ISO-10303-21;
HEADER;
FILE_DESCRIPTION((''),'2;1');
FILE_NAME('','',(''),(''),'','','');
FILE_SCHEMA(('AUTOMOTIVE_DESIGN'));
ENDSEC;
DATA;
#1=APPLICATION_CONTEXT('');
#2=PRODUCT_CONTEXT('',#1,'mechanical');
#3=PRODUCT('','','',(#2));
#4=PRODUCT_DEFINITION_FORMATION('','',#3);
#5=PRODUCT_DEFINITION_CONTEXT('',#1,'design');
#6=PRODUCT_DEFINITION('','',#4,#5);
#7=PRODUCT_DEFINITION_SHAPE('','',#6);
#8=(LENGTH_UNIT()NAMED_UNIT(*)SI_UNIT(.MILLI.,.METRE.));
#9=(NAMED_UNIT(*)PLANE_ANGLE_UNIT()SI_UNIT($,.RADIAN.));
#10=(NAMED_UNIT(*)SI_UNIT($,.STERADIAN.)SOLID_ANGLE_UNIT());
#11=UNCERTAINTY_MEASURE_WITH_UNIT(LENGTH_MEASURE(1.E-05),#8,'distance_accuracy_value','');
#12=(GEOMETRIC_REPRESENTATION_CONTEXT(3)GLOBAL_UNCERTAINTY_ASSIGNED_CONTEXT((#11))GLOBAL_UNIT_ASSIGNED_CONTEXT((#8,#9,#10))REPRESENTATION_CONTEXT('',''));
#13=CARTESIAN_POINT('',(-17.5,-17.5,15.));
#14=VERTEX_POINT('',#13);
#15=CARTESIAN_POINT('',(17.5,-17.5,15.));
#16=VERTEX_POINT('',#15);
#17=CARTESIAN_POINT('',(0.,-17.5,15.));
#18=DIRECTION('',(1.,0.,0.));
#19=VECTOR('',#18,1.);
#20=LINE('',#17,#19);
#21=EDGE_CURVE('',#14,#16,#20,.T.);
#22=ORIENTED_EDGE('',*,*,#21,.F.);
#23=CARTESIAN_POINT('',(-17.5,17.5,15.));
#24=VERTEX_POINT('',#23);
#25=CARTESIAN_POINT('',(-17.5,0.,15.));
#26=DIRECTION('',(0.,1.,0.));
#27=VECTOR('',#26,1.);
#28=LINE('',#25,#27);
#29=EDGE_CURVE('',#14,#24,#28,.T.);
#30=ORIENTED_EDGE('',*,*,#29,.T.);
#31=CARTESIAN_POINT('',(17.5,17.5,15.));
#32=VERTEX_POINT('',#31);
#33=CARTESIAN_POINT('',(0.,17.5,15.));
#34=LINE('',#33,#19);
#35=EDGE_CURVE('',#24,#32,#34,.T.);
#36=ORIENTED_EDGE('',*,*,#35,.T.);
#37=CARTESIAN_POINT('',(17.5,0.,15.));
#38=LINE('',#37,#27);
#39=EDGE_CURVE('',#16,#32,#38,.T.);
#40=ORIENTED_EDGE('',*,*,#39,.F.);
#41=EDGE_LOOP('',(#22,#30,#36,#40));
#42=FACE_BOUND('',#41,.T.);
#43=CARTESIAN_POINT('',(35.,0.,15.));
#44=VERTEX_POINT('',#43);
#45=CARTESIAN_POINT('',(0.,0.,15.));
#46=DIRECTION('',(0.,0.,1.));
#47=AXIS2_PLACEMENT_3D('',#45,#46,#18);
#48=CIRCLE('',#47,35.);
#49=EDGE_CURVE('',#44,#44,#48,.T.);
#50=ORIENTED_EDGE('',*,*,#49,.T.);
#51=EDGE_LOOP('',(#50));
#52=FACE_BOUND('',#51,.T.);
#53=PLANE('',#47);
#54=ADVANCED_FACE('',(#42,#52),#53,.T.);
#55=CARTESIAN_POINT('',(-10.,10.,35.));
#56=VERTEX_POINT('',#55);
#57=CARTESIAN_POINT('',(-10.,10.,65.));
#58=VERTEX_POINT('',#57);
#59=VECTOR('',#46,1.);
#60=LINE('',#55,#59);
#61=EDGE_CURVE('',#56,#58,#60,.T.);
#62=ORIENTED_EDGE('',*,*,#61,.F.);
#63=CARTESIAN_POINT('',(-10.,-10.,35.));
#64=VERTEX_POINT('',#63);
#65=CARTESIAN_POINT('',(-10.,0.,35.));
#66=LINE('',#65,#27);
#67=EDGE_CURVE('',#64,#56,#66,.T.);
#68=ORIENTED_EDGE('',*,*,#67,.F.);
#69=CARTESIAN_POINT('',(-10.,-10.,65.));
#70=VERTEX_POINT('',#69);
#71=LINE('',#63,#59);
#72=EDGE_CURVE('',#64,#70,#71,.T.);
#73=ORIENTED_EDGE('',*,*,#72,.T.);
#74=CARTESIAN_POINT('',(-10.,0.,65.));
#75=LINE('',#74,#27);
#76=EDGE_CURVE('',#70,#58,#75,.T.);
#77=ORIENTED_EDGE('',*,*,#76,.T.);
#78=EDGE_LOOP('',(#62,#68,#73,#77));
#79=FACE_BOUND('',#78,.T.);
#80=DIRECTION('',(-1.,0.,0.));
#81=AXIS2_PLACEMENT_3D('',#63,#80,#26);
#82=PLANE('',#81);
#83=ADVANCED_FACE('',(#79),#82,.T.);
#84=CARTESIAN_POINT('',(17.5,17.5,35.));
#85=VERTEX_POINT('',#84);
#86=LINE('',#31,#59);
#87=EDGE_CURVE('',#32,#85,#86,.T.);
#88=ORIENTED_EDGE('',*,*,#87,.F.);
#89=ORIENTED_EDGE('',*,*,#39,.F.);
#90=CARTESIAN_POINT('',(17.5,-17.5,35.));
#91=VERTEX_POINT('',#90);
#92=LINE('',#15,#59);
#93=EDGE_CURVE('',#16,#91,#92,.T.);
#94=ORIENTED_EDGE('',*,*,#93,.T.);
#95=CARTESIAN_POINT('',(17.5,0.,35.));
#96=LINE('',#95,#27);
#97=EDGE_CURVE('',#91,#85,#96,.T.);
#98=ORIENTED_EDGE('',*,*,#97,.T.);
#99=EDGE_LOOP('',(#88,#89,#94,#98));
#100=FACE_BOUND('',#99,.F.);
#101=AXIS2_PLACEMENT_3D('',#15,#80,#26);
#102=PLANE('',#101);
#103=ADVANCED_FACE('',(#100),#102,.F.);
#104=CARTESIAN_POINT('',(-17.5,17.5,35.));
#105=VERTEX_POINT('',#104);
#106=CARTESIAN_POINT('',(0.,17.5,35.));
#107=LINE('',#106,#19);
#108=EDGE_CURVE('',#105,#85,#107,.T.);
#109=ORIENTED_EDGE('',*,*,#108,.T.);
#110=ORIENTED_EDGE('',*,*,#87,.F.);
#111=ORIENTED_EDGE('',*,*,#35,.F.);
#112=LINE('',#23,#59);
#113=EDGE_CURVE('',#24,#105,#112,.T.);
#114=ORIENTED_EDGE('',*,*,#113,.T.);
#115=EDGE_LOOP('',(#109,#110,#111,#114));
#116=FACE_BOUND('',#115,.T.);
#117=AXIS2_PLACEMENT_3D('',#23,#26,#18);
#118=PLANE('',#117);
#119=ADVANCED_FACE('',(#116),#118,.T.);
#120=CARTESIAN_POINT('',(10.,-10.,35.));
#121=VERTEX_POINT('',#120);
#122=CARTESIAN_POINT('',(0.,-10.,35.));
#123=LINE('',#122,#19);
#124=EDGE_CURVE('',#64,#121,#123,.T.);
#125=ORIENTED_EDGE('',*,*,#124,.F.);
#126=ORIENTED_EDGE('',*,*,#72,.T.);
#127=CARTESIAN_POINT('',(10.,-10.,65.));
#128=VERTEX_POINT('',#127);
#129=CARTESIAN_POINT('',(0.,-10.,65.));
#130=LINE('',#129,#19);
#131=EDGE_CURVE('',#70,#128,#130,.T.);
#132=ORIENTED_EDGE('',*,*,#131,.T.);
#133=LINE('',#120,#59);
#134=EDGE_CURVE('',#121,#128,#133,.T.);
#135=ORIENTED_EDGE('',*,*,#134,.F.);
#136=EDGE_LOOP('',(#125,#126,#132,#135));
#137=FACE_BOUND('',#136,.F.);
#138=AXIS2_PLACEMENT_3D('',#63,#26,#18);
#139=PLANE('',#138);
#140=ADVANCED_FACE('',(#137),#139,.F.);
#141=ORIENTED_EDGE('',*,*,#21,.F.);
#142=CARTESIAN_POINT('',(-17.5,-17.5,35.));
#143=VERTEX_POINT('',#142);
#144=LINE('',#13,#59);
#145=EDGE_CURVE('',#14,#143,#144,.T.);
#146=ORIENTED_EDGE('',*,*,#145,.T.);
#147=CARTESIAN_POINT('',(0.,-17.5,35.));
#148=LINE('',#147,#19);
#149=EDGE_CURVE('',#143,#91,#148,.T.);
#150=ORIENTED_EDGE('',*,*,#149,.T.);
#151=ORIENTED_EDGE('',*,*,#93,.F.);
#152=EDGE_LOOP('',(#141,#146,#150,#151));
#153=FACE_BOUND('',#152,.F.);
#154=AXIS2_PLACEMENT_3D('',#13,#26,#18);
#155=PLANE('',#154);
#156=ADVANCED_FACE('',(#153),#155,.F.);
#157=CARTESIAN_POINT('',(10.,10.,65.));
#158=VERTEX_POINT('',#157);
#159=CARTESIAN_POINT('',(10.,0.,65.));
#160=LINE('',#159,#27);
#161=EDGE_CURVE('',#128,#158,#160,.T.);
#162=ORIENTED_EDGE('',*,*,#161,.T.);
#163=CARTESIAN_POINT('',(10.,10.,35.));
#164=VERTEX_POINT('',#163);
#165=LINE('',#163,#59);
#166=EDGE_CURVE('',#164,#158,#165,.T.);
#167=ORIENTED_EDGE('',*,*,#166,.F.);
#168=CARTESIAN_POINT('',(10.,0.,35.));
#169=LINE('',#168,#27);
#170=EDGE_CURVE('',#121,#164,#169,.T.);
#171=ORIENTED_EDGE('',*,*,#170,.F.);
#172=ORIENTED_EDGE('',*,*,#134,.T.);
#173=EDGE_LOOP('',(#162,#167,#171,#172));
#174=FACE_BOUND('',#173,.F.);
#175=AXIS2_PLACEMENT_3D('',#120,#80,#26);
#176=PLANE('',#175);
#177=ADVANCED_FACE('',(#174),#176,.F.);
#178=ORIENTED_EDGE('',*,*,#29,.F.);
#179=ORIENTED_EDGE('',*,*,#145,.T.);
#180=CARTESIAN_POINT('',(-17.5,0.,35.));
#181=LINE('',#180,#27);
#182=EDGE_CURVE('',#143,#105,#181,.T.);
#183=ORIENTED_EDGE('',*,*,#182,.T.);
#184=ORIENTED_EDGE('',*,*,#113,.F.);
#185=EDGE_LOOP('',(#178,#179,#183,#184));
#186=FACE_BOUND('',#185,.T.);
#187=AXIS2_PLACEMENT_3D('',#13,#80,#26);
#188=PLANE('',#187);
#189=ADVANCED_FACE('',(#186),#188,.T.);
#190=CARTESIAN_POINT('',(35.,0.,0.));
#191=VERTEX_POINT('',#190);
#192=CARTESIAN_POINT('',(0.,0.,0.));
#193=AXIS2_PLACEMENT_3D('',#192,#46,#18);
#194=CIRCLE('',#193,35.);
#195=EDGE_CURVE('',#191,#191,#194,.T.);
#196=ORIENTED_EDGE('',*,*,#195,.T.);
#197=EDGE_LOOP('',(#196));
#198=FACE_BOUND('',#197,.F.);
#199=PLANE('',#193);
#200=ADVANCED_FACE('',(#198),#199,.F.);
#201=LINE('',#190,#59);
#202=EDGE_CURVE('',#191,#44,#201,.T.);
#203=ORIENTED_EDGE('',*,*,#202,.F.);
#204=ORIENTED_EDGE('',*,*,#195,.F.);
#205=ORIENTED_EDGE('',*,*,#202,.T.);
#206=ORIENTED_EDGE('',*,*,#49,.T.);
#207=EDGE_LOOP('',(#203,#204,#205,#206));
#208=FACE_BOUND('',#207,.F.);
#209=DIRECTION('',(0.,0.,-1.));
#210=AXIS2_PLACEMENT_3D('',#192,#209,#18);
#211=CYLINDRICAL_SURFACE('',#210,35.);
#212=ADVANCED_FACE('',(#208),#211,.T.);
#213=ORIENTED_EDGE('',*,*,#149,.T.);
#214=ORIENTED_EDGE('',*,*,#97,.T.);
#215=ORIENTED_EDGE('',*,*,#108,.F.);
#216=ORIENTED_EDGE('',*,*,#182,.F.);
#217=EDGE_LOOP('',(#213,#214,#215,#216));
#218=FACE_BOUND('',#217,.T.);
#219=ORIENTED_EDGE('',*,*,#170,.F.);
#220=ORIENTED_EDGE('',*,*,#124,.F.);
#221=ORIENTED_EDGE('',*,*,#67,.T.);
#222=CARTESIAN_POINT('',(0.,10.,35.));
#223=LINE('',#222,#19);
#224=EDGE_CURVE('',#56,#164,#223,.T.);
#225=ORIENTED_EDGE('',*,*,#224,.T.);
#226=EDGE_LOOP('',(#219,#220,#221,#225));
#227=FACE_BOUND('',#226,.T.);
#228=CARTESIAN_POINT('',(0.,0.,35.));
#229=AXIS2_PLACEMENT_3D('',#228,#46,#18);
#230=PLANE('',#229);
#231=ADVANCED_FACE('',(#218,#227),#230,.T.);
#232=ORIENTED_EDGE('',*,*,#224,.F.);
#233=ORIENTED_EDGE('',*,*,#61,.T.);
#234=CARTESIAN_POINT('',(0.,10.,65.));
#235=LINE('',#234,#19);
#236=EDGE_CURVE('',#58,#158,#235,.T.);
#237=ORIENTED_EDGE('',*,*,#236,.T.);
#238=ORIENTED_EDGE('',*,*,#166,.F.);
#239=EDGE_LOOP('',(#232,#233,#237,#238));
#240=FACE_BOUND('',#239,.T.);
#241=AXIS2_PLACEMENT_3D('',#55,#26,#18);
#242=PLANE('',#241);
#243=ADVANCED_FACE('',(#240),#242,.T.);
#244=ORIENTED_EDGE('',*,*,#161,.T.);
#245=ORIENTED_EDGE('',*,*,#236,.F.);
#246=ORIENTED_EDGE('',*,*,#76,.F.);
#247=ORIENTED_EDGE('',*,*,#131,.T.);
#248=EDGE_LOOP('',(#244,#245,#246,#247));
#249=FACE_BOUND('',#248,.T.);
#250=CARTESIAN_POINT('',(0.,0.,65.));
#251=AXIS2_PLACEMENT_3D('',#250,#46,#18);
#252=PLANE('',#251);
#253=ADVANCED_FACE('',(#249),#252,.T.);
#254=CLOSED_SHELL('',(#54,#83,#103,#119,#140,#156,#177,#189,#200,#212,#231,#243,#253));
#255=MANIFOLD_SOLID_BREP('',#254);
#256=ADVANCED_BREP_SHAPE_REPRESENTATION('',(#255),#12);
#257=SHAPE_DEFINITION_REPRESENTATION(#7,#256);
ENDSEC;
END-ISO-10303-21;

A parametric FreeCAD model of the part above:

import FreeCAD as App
import Part
import Sketcher

V = App.Vector
Q = App.Units.Quantity


def add_polygon(sketch, points):
    """Adds a closed chain of lines whose ends are joined by coincident constraints."""
    first, n = sketch.GeometryCount, len(points)
    for a, b in zip(points, points[1:] + points[:1]):
        sketch.addGeometry(Part.LineSegment(App.Vector(*a, 0), App.Vector(*b, 0)), False)
    for i in range(n):
        sketch.addConstraint(Sketcher.Constraint("Coincident", first + i, 2, first + (i + 1) % n, 1))

doc = App.newDocument("Part")
body = doc.addObject("PartDesign::Body", "Body")

sketch1 = body.newObject("Sketcher::SketchObject", "Sketch")
sketch1.AttachmentSupport = (doc.getObject("XY_Plane"), [""])
sketch1.MapMode = "FlatFace"
sketch1.addGeometry(Part.Circle(V(0, 0, 0), V(0, 0, 1), 35), False)
sketch1.addConstraint([
    Sketcher.Constraint("Coincident", 0, 3, -1, 1),
    Sketcher.Constraint("Diameter", 0, Q("70 mm")),
])
pad1 = body.newObject("PartDesign::Pad", "Pad")
pad1.Profile = sketch1
pad1.Length = 15

sketch2 = body.newObject("Sketcher::SketchObject", "Sketch001")
sketch2.AttachmentSupport = (doc.getObject("XY_Plane"), [""])
sketch2.MapMode = "FlatFace"
sketch2.AttachmentOffset = App.Placement(V(0, 0, 15), App.Rotation())
add_polygon(sketch2, [(-17.5, 17.5), (-17.5, -17.5), (17.5, -17.5), (17.5, 17.5)])
sketch2.addConstraint([
    Sketcher.Constraint("Vertical", 0),
    Sketcher.Constraint("Horizontal", 1),
    Sketcher.Constraint("Vertical", 2),
    Sketcher.Constraint("Horizontal", 3),
    Sketcher.Constraint("Symmetric", 0, 2, 2, 2, -1, 1),
    Sketcher.Constraint("Equal", 3, 0),
    Sketcher.Constraint("DistanceX", 1, 1, 1, 2, Q("35 mm")),
])
pad2 = body.newObject("PartDesign::Pad", "Pad001")
pad2.Profile = sketch2
pad2.Length = 20

sketch3 = body.newObject("Sketcher::SketchObject", "Sketch002")
sketch3.AttachmentSupport = (doc.getObject("XY_Plane"), [""])
sketch3.MapMode = "FlatFace"
sketch3.AttachmentOffset = App.Placement(V(0, 0, 35), App.Rotation())
add_polygon(sketch3, [(-10, 10), (-10, -10), (10, -10), (10, 10)])
sketch3.addConstraint([
    Sketcher.Constraint("Vertical", 0),
    Sketcher.Constraint("Horizontal", 1),
    Sketcher.Constraint("Vertical", 2),
    Sketcher.Constraint("Horizontal", 3),
    Sketcher.Constraint("Symmetric", 0, 2, 2, 2, -1, 1),
    Sketcher.Constraint("Equal", 3, 0),
    Sketcher.Constraint("DistanceX", 1, 1, 1, 2, Q("20 mm")),
])
pad3 = body.newObject("PartDesign::Pad", "Pad002")
pad3.Profile = sketch3
pad3.Length = 30

doc.recompute()
